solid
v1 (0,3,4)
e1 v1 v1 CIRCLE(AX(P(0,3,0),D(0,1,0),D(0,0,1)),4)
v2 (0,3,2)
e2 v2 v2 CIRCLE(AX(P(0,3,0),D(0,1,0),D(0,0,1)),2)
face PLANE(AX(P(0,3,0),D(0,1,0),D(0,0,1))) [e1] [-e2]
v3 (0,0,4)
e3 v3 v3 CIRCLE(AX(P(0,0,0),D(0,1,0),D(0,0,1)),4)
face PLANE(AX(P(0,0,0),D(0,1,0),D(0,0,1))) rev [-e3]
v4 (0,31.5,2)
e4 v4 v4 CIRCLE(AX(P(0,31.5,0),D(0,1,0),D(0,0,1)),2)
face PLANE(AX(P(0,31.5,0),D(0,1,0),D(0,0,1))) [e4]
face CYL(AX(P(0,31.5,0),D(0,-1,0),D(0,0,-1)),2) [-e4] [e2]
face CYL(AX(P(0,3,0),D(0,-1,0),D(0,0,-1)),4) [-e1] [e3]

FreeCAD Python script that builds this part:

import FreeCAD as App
import Part
import Sketcher
from FreeCAD import Vector

doc = App.newDocument("Part")
body = doc.addObject("PartDesign::Body", "Body")

# Sketch on XZ plane
sketch1 = doc.addObject("Sketcher::SketchObject", "Sketch")
body.addObject(sketch1)
sketch1.AttachmentSupport = (doc.XZ_Plane, [""])
sketch1.MapMode = "FlatFace"
sketch1.addGeometry(Part.Circle(Vector(0, 0, 0), Vector(0, 0, 1), 4), False)
sketch1.addGeometry(Part.Circle(Vector(0, 0, 0), Vector(0, 0, 1), 2), False)
sketch1.addConstraint(Sketcher.Constraint("Coincident", 0, 3, -1, 1))
sketch1.addConstraint(Sketcher.Constraint("Coincident", 1, 3, -1, 1))
sketch1.addConstraint(Sketcher.Constraint("Diameter", 0, 8.0))
sketch1.addConstraint(Sketcher.Constraint("Diameter", 1, 4.0))
pad1 = doc.addObject("PartDesign::Pad", "Pad")
body.addObject(pad1)
pad1.Profile = sketch1
pad1.Length = 3
pad1.Reversed = True

# Sketch on XZ plane
sketch2 = doc.addObject("Sketcher::SketchObject", "Sketch001")
body.addObject(sketch2)
sketch2.AttachmentSupport = (doc.XZ_Plane, [""])
sketch2.MapMode = "FlatFace"
sketch2.addGeometry(Part.Circle(Vector(0, 0, 0), Vector(0, 0, 1), 2), False)
sketch2.addConstraint(Sketcher.Constraint("Coincident", 0, 3, -1, 1))
sketch2.addConstraint(Sketcher.Constraint("Diameter", 0, 4.0))
pad2 = doc.addObject("PartDesign::Pad", "Pad001")
body.addObject(pad2)
pad2.Profile = sketch2
pad2.Length = 31.5
pad2.Reversed = True

doc.recompute()
